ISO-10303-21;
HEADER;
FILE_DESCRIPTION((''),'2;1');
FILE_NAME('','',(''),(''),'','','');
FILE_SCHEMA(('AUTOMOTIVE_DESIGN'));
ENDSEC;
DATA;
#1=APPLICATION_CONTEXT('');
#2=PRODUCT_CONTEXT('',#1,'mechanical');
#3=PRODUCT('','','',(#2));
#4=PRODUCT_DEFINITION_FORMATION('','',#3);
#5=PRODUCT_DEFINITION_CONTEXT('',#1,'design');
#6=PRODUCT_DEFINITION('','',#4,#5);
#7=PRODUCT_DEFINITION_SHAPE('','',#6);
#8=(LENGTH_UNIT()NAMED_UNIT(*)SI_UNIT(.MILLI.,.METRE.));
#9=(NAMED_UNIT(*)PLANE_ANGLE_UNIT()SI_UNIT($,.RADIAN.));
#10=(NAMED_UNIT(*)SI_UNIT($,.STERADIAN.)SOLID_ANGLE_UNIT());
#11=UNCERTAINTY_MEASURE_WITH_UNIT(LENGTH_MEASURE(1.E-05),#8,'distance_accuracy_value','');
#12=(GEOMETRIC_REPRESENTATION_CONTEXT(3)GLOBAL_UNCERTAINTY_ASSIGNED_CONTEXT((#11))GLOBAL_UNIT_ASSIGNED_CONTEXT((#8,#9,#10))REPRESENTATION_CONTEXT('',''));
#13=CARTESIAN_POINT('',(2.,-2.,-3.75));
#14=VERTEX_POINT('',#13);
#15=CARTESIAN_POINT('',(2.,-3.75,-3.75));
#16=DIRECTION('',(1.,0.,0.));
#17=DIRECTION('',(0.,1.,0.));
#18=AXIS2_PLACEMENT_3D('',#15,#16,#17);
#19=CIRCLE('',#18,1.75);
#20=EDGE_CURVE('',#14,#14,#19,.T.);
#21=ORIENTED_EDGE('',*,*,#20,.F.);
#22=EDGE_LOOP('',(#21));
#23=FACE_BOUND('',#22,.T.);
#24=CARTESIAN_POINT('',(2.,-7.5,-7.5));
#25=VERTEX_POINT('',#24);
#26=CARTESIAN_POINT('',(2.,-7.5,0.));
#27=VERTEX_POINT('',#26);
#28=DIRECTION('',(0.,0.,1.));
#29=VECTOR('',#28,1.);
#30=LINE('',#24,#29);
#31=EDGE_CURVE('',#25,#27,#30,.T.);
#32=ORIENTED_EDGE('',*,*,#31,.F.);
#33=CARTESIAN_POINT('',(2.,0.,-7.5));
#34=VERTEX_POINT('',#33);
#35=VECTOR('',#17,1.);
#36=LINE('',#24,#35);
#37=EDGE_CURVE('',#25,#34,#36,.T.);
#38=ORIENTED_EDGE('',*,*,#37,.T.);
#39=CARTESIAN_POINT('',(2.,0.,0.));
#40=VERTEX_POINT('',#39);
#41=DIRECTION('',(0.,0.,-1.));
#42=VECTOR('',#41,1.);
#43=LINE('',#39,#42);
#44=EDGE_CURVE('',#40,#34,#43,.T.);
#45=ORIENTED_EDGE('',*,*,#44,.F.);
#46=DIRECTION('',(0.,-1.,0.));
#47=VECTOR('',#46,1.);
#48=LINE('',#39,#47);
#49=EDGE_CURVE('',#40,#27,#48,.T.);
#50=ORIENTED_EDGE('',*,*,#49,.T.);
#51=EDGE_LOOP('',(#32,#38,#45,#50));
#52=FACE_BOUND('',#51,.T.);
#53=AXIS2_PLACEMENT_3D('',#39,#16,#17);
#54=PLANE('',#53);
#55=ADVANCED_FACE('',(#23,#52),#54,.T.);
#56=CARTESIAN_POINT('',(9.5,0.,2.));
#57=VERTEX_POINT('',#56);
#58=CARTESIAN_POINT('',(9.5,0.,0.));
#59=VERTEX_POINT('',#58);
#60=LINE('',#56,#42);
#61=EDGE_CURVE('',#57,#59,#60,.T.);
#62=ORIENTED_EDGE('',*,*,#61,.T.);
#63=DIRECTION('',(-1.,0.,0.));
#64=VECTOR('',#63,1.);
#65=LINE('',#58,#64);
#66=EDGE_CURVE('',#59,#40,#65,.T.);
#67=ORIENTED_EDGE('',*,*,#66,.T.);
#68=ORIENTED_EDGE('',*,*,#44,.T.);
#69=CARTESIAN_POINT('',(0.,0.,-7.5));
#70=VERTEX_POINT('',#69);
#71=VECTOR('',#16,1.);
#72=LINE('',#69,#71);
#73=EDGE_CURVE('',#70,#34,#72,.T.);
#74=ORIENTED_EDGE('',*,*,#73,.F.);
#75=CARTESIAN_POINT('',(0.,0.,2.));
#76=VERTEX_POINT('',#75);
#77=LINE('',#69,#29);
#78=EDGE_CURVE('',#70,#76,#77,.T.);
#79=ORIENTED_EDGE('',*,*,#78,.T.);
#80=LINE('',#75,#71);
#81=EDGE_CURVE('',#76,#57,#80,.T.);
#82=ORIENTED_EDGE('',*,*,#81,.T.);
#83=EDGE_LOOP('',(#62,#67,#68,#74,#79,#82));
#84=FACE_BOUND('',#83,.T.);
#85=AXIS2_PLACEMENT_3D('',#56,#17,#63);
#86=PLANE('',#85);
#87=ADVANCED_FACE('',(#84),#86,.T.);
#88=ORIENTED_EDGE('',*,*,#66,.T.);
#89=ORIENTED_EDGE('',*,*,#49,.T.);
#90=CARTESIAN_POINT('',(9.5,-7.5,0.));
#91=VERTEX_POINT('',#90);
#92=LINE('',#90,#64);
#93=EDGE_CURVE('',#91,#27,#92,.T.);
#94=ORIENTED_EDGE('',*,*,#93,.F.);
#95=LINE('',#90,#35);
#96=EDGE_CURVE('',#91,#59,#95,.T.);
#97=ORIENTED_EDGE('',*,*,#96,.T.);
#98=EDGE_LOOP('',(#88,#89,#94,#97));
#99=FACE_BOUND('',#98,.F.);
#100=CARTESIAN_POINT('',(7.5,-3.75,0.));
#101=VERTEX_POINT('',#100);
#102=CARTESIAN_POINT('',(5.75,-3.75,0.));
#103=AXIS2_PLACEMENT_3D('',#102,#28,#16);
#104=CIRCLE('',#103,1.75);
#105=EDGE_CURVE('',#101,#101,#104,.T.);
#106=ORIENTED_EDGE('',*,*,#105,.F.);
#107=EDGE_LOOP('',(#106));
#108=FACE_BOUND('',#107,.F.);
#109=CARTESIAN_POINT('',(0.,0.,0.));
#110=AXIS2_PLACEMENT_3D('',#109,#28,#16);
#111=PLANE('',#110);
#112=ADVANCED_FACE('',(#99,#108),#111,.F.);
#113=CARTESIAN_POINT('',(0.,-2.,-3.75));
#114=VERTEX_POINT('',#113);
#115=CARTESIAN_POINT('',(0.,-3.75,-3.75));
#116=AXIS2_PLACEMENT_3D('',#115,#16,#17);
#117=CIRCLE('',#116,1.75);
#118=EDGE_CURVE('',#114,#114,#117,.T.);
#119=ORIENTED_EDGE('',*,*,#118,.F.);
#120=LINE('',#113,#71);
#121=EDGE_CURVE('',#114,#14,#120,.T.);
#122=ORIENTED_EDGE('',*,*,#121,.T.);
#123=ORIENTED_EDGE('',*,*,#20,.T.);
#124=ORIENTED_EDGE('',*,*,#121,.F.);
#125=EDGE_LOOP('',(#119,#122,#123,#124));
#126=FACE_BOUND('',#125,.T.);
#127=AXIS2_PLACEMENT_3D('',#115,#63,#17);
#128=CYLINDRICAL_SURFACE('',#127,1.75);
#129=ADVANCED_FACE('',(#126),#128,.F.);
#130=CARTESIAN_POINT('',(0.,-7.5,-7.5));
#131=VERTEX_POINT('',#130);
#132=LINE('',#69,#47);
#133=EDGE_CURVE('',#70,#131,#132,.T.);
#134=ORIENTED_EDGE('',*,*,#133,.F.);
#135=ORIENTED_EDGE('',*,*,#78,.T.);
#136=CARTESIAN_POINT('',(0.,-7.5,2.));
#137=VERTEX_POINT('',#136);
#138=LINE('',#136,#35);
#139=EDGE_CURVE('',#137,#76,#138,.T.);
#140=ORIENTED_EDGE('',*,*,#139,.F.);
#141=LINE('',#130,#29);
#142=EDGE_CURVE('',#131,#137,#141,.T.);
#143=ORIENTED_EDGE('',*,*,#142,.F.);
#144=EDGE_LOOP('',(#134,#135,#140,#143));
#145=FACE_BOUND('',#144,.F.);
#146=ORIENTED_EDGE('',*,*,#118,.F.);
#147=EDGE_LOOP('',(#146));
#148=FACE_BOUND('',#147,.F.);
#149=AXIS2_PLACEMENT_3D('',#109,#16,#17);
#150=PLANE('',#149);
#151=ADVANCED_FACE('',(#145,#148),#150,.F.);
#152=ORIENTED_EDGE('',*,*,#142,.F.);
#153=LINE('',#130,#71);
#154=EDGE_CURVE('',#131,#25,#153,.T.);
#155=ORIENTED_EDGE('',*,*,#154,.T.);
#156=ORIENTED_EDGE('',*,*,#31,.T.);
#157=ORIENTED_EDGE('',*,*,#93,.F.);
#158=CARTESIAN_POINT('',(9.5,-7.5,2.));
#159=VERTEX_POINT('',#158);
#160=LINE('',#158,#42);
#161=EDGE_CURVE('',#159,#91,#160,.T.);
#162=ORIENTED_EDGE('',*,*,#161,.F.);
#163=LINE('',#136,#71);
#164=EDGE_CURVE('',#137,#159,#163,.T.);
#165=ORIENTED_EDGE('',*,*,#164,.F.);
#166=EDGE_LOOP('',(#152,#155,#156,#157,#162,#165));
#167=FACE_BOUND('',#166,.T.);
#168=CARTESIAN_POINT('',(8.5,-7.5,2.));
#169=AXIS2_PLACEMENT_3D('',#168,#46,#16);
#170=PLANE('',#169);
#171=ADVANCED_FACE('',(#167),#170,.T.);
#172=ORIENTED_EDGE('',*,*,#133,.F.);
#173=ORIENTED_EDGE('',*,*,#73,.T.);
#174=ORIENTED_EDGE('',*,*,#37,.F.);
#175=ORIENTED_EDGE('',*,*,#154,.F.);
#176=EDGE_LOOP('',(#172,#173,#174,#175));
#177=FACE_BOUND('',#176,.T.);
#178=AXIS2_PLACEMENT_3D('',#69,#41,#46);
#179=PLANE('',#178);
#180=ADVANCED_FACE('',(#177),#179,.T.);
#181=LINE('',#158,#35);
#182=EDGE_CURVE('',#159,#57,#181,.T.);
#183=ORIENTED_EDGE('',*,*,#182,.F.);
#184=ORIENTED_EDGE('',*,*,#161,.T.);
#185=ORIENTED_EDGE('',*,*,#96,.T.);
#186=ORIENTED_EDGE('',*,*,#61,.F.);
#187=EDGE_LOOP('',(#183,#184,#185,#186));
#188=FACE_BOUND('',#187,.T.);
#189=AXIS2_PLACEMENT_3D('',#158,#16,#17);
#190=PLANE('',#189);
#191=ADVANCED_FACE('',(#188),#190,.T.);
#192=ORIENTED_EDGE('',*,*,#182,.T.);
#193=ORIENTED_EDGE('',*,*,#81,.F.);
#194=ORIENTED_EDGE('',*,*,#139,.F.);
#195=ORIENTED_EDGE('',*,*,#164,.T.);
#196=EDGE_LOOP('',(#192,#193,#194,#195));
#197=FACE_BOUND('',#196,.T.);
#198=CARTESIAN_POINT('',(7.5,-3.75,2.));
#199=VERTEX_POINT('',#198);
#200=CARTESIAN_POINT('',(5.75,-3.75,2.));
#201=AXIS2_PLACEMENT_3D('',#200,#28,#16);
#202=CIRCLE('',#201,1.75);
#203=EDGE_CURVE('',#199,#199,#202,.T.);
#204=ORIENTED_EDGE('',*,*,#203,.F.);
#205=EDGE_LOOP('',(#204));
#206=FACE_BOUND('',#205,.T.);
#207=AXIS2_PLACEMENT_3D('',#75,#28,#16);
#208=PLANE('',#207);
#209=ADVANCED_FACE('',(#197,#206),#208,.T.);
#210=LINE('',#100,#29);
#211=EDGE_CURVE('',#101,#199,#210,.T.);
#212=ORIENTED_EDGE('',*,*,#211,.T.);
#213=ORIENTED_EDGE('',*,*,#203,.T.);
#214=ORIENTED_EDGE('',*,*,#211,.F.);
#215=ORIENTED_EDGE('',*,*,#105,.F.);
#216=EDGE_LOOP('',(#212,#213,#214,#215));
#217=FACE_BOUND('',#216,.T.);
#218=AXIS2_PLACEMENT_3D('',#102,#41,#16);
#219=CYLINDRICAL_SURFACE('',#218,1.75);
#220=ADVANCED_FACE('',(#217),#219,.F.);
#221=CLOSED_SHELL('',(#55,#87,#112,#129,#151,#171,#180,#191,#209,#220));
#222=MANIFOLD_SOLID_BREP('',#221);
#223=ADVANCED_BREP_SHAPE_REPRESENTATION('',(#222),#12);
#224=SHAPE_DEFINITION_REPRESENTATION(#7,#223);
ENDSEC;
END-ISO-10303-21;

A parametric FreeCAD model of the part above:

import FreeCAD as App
import Part
import Sketcher

doc = App.newDocument("Part")
params = doc.addObject("Spreadsheet::Sheet", "Params")
for row, (alias, value) in enumerate([
    ("sketch1_diameter", "3.5 mm"),
    ("sketch1_width", "7.5 mm"),
    ("pad1_length", "2 mm"),
    ("sketch2_diameter", "3.5 mm"),
    ("sketch2_width", "8.5 mm"),
    ("sketch2_height", "7.5 mm"),
    ("pad2_length", "2 mm"),
    ("sketch3_width", "1 mm"),
    ("sketch3_height", "7.5 mm"),
    ("pad3_length", "2 mm"),
], start=1):
    params.set(f"A{row}", alias)
    params.set(f"B{row}", "=" + value)
    params.setAlias(f"B{row}", alias)

body = doc.addObject("PartDesign::Body", "Body")

# Sketch on YZ plane
sketch1 = body.newObject("Sketcher::SketchObject", "Sketch")
sketch1.AttachmentSupport = (doc.getObject("YZ_Plane"), [""])
sketch1.MapMode = "FlatFace"
sketch1.addGeometry([
    Part.LineSegment(App.Vector(0, -7.5, 0), App.Vector(0, 0, 0)),  # 0
    Part.LineSegment(App.Vector(0, 0, 0), App.Vector(-7.5, 0, 0)),  # 1
    Part.LineSegment(App.Vector(-7.5, 0, 0), App.Vector(-7.5, -7.5, 0)),  # 2
    Part.LineSegment(App.Vector(-7.5, -7.5, 0), App.Vector(0, -7.5, 0)),  # 3
    Part.Circle(App.Vector(-3.8, -3.8, 0), App.Vector(0, 0, 1), 1.8),  # 4
], False)
sketch1.addConstraint([
    Sketcher.Constraint("Coincident", 0, 2, 1, 1),
    Sketcher.Constraint("Coincident", 1, 2, 2, 1),
    Sketcher.Constraint("Coincident", 2, 2, 3, 1),
    Sketcher.Constraint("Coincident", 3, 2, 0, 1),
    Sketcher.Constraint("Vertical", 0),
    Sketcher.Constraint("Horizontal", 1),
    Sketcher.Constraint("Vertical", 2),
    Sketcher.Constraint("Horizontal", 3),
    Sketcher.Constraint("Coincident", 0, 2, -1, 1),
    Sketcher.Constraint("Equal", 3, 0),
    Sketcher.Constraint("Diameter", 4, 3.5),
    Sketcher.Constraint("DistanceX", 1, 2, 1, 1, 7.5),
    Sketcher.Constraint("DistanceX", 4, 3, -1, 1, 3.75),
    Sketcher.Constraint("DistanceY", 4, 3, -1, 1, 3.75),
])
sketch1.setExpression("Constraints[10]", "Params.sketch1_diameter")
sketch1.setExpression("Constraints[11]", "Params.sketch1_width")
pad1 = body.newObject("PartDesign::Pad", "Pad")
pad1.Profile = sketch1
pad1.setExpression("Length", "Params.pad1_length")

# Sketch on XY plane
sketch2 = body.newObject("Sketcher::SketchObject", "Sketch001")
sketch2.AttachmentSupport = (doc.getObject("XY_Plane"), [""])
sketch2.MapMode = "FlatFace"
sketch2.addGeometry([
    Part.LineSegment(App.Vector(0, 0, 0), App.Vector(0, -7.5, 0)),  # 0
    Part.LineSegment(App.Vector(0, -7.5, 0), App.Vector(8.5, -7.5, 0)),  # 1
    Part.LineSegment(App.Vector(8.5, -7.5, 0), App.Vector(8.5, 0, 0)),  # 2
    Part.LineSegment(App.Vector(8.5, 0, 0), App.Vector(0, 0, 0)),  # 3
    Part.Circle(App.Vector(5.8, -3.8, 0), App.Vector(0, 0, 1), 1.8),  # 4
], False)
sketch2.addConstraint([
    Sketcher.Constraint("Coincident", 0, 2, 1, 1),
    Sketcher.Constraint("Coincident", 1, 2, 2, 1),
    Sketcher.Constraint("Coincident", 2, 2, 3, 1),
    Sketcher.Constraint("Coincident", 3, 2, 0, 1),
    Sketcher.Constraint("Vertical", 0),
    Sketcher.Constraint("Horizontal", 1),
    Sketcher.Constraint("Vertical", 2),
    Sketcher.Constraint("Horizontal", 3),
    Sketcher.Constraint("Coincident", 3, 2, -1, 1),
    Sketcher.Constraint("Diameter", 4, 3.5),
    Sketcher.Constraint("DistanceX", 1, 1, 1, 2, 8.5),
    Sketcher.Constraint("DistanceY", 0, 2, 0, 1, 7.5),
    Sketcher.Constraint("DistanceX", -1, 1, 4, 3, 5.75),
    Sketcher.Constraint("DistanceY", 4, 3, -1, 1, 3.75),
])
sketch2.setExpression("Constraints[9]", "Params.sketch2_diameter")
sketch2.setExpression("Constraints[10]", "Params.sketch2_width")
sketch2.setExpression("Constraints[11]", "Params.sketch2_height")
pad2 = body.newObject("PartDesign::Pad", "Pad001")
pad2.Profile = sketch2
pad2.setExpression("Length", "Params.pad2_length")

# Sketch on XY plane
sketch3 = body.newObject("Sketcher::SketchObject", "Sketch002")
sketch3.AttachmentSupport = (doc.getObject("XY_Plane"), [""])
sketch3.MapMode = "FlatFace"
sketch3.AttachmentOffset = App.Placement(App.Vector(0, 0, 2), App.Rotation())
sketch3.addGeometry([
    Part.LineSegment(App.Vector(8.5, 0, 0), App.Vector(8.5, -7.5, 0)),
    Part.LineSegment(App.Vector(8.5, -7.5, 0), App.Vector(9.5, -7.5, 0)),
    Part.LineSegment(App.Vector(9.5, -7.5, 0), App.Vector(9.5, 0, 0)),
    Part.LineSegment(App.Vector(9.5, 0, 0), App.Vector(8.5, 0, 0)),
], False)
sketch3.addConstraint([
    Sketcher.Constraint("Coincident", 0, 2, 1, 1),
    Sketcher.Constraint("Coincident", 1, 2, 2, 1),
    Sketcher.Constraint("Coincident", 2, 2, 3, 1),
    Sketcher.Constraint("Coincident", 3, 2, 0, 1),
    Sketcher.Constraint("Vertical", 0),
    Sketcher.Constraint("Horizontal", 1),
    Sketcher.Constraint("Vertical", 2),
    Sketcher.Constraint("Horizontal", 3),
    Sketcher.Constraint("PointOnObject", 2, 2, -1),
    Sketcher.Constraint("DistanceX", 1, 1, 1, 2, 1.0),
    Sketcher.Constraint("DistanceY", 0, 2, 0, 1, 7.5),
    Sketcher.Constraint("DistanceX", -1, 1, 0, 2, 8.5),
])
sketch3.setExpression("Constraints[9]", "Params.sketch3_width")
sketch3.setExpression("Constraints[10]", "Params.sketch3_height")
pad3 = body.newObject("PartDesign::Pad", "Pad002")
pad3.Profile = sketch3
pad3.setExpression("Length", "Params.pad3_length")
pad3.Reversed = True

doc.recompute()
